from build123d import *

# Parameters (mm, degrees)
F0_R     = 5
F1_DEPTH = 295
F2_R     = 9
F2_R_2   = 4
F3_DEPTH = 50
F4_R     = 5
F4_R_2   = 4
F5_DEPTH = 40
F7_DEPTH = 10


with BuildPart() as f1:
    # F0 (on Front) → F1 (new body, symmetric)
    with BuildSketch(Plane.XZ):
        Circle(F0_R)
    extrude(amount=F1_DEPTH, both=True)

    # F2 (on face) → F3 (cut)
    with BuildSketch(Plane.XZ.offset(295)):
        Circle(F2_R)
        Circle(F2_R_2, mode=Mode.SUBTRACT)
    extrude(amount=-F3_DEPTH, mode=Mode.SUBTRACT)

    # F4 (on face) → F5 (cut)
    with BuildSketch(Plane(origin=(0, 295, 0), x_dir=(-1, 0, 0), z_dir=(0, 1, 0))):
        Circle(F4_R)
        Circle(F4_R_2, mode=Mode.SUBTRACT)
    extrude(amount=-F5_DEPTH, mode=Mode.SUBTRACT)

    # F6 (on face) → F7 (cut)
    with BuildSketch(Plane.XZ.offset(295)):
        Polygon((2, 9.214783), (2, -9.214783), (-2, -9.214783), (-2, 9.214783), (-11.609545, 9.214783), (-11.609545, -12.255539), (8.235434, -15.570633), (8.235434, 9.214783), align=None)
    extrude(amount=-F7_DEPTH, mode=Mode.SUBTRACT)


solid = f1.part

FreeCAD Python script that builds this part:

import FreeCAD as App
import Part
import Sketcher
from FreeCAD import Vector

doc = App.newDocument("Part")
body = doc.addObject("PartDesign::Body", "Body")

# Sketch on XZ plane
sketch1 = body.newObject("Sketcher::SketchObject", "Sketch")
sketch1.AttachmentSupport = (doc.getObject("XZ_Plane"), [""])
sketch1.MapMode = "FlatFace"
sketch1.addGeometry(Part.Circle(Vector(0, 0, 0), Vector(0, 0, 1), 5), False)
sketch1.addConstraint(Sketcher.Constraint("Coincident", 0, 3, -1, 1))
sketch1.addConstraint(Sketcher.Constraint("Diameter", 0, 10.0))
pad1 = body.newObject("PartDesign::Pad", "Pad")
pad1.Profile = sketch1
pad1.Length = 590
pad1.Midplane = True

# Sketch on XZ plane
sketch2 = body.newObject("Sketcher::SketchObject", "Sketch001")
sketch2.AttachmentSupport = (doc.getObject("XZ_Plane"), [""])
sketch2.MapMode = "FlatFace"
sketch2.AttachmentOffset = App.Placement(Vector(0, 0, 295), App.Rotation())
sketch2.addGeometry(Part.Circle(Vector(0, 0, 0), Vector(0, 0, 1), 9), False)
sketch2.addGeometry(Part.Circle(Vector(0, 0, 0), Vector(0, 0, 1), 4), False)
sketch2.addConstraint(Sketcher.Constraint("Coincident", 0, 3, -1, 1))
sketch2.addConstraint(Sketcher.Constraint("Coincident", 1, 3, -1, 1))
sketch2.addConstraint(Sketcher.Constraint("Diameter", 0, 18.0))
sketch2.addConstraint(Sketcher.Constraint("Diameter", 1, 8.0))
pocket1 = body.newObject("PartDesign::Pocket", "Pocket")
pocket1.Profile = sketch2
pocket1.Length = 50

# Sketch on XZ plane
sketch3 = body.newObject("Sketcher::SketchObject", "Sketch002")
sketch3.AttachmentSupport = (doc.getObject("XZ_Plane"), [""])
sketch3.MapMode = "FlatFace"
sketch3.AttachmentOffset = App.Placement(Vector(0, 0, -295), App.Rotation())
sketch3.addGeometry(Part.Circle(Vector(0, 0, 0), Vector(0, 0, 1), 5), False)
sketch3.addGeometry(Part.Circle(Vector(0, 0, 0), Vector(0, 0, 1), 4), False)
sketch3.addConstraint(Sketcher.Constraint("Coincident", 0, 3, -1, 1))
sketch3.addConstraint(Sketcher.Constraint("Coincident", 1, 3, -1, 1))
sketch3.addConstraint(Sketcher.Constraint("Diameter", 0, 10.0))
sketch3.addConstraint(Sketcher.Constraint("Diameter", 1, 8.0))
pocket2 = body.newObject("PartDesign::Pocket", "Pocket001")
pocket2.Profile = sketch3
pocket2.Length = 40
pocket2.Reversed = True

# Sketch on XZ plane
sketch4 = body.newObject("Sketcher::SketchObject", "Sketch003")
sketch4.AttachmentSupport = (doc.getObject("XZ_Plane"), [""])
sketch4.MapMode = "FlatFace"
sketch4.AttachmentOffset = App.Placement(Vector(0, 0, 295), App.Rotation())
sketch4.addGeometry(Part.LineSegment(Vector(2, 9.214783, 0), Vector(2, -9.214783, 0)), False)
sketch4.addGeometry(Part.LineSegment(Vector(2, -9.214783, 0), Vector(-2, -9.214783, 0)), False)
sketch4.addGeometry(Part.LineSegment(Vector(-2, -9.214783, 0), Vector(-2, 9.214783, 0)), False)
sketch4.addGeometry(Part.LineSegment(Vector(-2, 9.214783, 0), Vector(-11.609545, 9.214783, 0)), False)
sketch4.addGeometry(Part.LineSegment(Vector(-11.609545, 9.214783, 0), Vector(-11.609545, -12.255539, 0)), False)
sketch4.addGeometry(Part.LineSegment(Vector(-11.609545, -12.255539, 0), Vector(8.235434, -15.570633, 0)), False)
sketch4.addGeometry(Part.LineSegment(Vector(8.235434, -15.570633, 0), Vector(8.235434, 9.214783, 0)), False)
sketch4.addGeometry(Part.LineSegment(Vector(8.235434, 9.214783, 0), Vector(2, 9.214783, 0)), False)
sketch4.addConstraint(Sketcher.Constraint("Coincident", 0, 2, 1, 1))
sketch4.addConstraint(Sketcher.Constraint("Coincident", 1, 2, 2, 1))
sketch4.addConstraint(Sketcher.Constraint("Coincident", 2, 2, 3, 1))
sketch4.addConstraint(Sketcher.Constraint("Coincident", 3, 2, 4, 1))
sketch4.addConstraint(Sketcher.Constraint("Coincident", 4, 2, 5, 1))
sketch4.addConstraint(Sketcher.Constraint("Coincident", 5, 2, 6, 1))
sketch4.addConstraint(Sketcher.Constraint("Coincident", 6, 2, 7, 1))
sketch4.addConstraint(Sketcher.Constraint("Coincident", 7, 2, 0, 1))
sketch4.addConstraint(Sketcher.Constraint("Vertical", 0))
sketch4.addConstraint(Sketcher.Constraint("Horizontal", 1))
sketch4.addConstraint(Sketcher.Constraint("Vertical", 2))
sketch4.addConstraint(Sketcher.Constraint("Horizontal", 3))
sketch4.addConstraint(Sketcher.Constraint("Vertical", 4))
sketch4.addConstraint(Sketcher.Constraint("Vertical", 6))
sketch4.addConstraint(Sketcher.Constraint("Horizontal", 7))
sketch4.addConstraint(Sketcher.Constraint("Symmetric", 0, 2, 2, 2, -1, 1))
sketch4.addConstraint(Sketcher.Constraint("Horizontal", 3, 2, 6, 2))
sketch4.addConstraint(Sketcher.Constraint("DistanceX", 1, 2, 1, 1, 4.0))
sketch4.addConstraint(Sketcher.Constraint("DistanceX", 3, 2, 3, 1, 9.609545))
sketch4.addConstraint(Sketcher.Constraint("DistanceX", 7, 2, 7, 1, 6.235434))
sketch4.addConstraint(Sketcher.Constraint("DistanceY", 0, 2, 0, 1, 18.429566))
sketch4.addConstraint(Sketcher.Constraint("DistanceY", 4, 2, 4, 1, 21.470322))
sketch4.addConstraint(Sketcher.Constraint("DistanceY", 6, 1, 6, 2, 24.785416))
pocket3 = body.newObject("PartDesign::Pocket", "Pocket002")
pocket3.Profile = sketch4
pocket3.Length = 10

doc.recompute()
